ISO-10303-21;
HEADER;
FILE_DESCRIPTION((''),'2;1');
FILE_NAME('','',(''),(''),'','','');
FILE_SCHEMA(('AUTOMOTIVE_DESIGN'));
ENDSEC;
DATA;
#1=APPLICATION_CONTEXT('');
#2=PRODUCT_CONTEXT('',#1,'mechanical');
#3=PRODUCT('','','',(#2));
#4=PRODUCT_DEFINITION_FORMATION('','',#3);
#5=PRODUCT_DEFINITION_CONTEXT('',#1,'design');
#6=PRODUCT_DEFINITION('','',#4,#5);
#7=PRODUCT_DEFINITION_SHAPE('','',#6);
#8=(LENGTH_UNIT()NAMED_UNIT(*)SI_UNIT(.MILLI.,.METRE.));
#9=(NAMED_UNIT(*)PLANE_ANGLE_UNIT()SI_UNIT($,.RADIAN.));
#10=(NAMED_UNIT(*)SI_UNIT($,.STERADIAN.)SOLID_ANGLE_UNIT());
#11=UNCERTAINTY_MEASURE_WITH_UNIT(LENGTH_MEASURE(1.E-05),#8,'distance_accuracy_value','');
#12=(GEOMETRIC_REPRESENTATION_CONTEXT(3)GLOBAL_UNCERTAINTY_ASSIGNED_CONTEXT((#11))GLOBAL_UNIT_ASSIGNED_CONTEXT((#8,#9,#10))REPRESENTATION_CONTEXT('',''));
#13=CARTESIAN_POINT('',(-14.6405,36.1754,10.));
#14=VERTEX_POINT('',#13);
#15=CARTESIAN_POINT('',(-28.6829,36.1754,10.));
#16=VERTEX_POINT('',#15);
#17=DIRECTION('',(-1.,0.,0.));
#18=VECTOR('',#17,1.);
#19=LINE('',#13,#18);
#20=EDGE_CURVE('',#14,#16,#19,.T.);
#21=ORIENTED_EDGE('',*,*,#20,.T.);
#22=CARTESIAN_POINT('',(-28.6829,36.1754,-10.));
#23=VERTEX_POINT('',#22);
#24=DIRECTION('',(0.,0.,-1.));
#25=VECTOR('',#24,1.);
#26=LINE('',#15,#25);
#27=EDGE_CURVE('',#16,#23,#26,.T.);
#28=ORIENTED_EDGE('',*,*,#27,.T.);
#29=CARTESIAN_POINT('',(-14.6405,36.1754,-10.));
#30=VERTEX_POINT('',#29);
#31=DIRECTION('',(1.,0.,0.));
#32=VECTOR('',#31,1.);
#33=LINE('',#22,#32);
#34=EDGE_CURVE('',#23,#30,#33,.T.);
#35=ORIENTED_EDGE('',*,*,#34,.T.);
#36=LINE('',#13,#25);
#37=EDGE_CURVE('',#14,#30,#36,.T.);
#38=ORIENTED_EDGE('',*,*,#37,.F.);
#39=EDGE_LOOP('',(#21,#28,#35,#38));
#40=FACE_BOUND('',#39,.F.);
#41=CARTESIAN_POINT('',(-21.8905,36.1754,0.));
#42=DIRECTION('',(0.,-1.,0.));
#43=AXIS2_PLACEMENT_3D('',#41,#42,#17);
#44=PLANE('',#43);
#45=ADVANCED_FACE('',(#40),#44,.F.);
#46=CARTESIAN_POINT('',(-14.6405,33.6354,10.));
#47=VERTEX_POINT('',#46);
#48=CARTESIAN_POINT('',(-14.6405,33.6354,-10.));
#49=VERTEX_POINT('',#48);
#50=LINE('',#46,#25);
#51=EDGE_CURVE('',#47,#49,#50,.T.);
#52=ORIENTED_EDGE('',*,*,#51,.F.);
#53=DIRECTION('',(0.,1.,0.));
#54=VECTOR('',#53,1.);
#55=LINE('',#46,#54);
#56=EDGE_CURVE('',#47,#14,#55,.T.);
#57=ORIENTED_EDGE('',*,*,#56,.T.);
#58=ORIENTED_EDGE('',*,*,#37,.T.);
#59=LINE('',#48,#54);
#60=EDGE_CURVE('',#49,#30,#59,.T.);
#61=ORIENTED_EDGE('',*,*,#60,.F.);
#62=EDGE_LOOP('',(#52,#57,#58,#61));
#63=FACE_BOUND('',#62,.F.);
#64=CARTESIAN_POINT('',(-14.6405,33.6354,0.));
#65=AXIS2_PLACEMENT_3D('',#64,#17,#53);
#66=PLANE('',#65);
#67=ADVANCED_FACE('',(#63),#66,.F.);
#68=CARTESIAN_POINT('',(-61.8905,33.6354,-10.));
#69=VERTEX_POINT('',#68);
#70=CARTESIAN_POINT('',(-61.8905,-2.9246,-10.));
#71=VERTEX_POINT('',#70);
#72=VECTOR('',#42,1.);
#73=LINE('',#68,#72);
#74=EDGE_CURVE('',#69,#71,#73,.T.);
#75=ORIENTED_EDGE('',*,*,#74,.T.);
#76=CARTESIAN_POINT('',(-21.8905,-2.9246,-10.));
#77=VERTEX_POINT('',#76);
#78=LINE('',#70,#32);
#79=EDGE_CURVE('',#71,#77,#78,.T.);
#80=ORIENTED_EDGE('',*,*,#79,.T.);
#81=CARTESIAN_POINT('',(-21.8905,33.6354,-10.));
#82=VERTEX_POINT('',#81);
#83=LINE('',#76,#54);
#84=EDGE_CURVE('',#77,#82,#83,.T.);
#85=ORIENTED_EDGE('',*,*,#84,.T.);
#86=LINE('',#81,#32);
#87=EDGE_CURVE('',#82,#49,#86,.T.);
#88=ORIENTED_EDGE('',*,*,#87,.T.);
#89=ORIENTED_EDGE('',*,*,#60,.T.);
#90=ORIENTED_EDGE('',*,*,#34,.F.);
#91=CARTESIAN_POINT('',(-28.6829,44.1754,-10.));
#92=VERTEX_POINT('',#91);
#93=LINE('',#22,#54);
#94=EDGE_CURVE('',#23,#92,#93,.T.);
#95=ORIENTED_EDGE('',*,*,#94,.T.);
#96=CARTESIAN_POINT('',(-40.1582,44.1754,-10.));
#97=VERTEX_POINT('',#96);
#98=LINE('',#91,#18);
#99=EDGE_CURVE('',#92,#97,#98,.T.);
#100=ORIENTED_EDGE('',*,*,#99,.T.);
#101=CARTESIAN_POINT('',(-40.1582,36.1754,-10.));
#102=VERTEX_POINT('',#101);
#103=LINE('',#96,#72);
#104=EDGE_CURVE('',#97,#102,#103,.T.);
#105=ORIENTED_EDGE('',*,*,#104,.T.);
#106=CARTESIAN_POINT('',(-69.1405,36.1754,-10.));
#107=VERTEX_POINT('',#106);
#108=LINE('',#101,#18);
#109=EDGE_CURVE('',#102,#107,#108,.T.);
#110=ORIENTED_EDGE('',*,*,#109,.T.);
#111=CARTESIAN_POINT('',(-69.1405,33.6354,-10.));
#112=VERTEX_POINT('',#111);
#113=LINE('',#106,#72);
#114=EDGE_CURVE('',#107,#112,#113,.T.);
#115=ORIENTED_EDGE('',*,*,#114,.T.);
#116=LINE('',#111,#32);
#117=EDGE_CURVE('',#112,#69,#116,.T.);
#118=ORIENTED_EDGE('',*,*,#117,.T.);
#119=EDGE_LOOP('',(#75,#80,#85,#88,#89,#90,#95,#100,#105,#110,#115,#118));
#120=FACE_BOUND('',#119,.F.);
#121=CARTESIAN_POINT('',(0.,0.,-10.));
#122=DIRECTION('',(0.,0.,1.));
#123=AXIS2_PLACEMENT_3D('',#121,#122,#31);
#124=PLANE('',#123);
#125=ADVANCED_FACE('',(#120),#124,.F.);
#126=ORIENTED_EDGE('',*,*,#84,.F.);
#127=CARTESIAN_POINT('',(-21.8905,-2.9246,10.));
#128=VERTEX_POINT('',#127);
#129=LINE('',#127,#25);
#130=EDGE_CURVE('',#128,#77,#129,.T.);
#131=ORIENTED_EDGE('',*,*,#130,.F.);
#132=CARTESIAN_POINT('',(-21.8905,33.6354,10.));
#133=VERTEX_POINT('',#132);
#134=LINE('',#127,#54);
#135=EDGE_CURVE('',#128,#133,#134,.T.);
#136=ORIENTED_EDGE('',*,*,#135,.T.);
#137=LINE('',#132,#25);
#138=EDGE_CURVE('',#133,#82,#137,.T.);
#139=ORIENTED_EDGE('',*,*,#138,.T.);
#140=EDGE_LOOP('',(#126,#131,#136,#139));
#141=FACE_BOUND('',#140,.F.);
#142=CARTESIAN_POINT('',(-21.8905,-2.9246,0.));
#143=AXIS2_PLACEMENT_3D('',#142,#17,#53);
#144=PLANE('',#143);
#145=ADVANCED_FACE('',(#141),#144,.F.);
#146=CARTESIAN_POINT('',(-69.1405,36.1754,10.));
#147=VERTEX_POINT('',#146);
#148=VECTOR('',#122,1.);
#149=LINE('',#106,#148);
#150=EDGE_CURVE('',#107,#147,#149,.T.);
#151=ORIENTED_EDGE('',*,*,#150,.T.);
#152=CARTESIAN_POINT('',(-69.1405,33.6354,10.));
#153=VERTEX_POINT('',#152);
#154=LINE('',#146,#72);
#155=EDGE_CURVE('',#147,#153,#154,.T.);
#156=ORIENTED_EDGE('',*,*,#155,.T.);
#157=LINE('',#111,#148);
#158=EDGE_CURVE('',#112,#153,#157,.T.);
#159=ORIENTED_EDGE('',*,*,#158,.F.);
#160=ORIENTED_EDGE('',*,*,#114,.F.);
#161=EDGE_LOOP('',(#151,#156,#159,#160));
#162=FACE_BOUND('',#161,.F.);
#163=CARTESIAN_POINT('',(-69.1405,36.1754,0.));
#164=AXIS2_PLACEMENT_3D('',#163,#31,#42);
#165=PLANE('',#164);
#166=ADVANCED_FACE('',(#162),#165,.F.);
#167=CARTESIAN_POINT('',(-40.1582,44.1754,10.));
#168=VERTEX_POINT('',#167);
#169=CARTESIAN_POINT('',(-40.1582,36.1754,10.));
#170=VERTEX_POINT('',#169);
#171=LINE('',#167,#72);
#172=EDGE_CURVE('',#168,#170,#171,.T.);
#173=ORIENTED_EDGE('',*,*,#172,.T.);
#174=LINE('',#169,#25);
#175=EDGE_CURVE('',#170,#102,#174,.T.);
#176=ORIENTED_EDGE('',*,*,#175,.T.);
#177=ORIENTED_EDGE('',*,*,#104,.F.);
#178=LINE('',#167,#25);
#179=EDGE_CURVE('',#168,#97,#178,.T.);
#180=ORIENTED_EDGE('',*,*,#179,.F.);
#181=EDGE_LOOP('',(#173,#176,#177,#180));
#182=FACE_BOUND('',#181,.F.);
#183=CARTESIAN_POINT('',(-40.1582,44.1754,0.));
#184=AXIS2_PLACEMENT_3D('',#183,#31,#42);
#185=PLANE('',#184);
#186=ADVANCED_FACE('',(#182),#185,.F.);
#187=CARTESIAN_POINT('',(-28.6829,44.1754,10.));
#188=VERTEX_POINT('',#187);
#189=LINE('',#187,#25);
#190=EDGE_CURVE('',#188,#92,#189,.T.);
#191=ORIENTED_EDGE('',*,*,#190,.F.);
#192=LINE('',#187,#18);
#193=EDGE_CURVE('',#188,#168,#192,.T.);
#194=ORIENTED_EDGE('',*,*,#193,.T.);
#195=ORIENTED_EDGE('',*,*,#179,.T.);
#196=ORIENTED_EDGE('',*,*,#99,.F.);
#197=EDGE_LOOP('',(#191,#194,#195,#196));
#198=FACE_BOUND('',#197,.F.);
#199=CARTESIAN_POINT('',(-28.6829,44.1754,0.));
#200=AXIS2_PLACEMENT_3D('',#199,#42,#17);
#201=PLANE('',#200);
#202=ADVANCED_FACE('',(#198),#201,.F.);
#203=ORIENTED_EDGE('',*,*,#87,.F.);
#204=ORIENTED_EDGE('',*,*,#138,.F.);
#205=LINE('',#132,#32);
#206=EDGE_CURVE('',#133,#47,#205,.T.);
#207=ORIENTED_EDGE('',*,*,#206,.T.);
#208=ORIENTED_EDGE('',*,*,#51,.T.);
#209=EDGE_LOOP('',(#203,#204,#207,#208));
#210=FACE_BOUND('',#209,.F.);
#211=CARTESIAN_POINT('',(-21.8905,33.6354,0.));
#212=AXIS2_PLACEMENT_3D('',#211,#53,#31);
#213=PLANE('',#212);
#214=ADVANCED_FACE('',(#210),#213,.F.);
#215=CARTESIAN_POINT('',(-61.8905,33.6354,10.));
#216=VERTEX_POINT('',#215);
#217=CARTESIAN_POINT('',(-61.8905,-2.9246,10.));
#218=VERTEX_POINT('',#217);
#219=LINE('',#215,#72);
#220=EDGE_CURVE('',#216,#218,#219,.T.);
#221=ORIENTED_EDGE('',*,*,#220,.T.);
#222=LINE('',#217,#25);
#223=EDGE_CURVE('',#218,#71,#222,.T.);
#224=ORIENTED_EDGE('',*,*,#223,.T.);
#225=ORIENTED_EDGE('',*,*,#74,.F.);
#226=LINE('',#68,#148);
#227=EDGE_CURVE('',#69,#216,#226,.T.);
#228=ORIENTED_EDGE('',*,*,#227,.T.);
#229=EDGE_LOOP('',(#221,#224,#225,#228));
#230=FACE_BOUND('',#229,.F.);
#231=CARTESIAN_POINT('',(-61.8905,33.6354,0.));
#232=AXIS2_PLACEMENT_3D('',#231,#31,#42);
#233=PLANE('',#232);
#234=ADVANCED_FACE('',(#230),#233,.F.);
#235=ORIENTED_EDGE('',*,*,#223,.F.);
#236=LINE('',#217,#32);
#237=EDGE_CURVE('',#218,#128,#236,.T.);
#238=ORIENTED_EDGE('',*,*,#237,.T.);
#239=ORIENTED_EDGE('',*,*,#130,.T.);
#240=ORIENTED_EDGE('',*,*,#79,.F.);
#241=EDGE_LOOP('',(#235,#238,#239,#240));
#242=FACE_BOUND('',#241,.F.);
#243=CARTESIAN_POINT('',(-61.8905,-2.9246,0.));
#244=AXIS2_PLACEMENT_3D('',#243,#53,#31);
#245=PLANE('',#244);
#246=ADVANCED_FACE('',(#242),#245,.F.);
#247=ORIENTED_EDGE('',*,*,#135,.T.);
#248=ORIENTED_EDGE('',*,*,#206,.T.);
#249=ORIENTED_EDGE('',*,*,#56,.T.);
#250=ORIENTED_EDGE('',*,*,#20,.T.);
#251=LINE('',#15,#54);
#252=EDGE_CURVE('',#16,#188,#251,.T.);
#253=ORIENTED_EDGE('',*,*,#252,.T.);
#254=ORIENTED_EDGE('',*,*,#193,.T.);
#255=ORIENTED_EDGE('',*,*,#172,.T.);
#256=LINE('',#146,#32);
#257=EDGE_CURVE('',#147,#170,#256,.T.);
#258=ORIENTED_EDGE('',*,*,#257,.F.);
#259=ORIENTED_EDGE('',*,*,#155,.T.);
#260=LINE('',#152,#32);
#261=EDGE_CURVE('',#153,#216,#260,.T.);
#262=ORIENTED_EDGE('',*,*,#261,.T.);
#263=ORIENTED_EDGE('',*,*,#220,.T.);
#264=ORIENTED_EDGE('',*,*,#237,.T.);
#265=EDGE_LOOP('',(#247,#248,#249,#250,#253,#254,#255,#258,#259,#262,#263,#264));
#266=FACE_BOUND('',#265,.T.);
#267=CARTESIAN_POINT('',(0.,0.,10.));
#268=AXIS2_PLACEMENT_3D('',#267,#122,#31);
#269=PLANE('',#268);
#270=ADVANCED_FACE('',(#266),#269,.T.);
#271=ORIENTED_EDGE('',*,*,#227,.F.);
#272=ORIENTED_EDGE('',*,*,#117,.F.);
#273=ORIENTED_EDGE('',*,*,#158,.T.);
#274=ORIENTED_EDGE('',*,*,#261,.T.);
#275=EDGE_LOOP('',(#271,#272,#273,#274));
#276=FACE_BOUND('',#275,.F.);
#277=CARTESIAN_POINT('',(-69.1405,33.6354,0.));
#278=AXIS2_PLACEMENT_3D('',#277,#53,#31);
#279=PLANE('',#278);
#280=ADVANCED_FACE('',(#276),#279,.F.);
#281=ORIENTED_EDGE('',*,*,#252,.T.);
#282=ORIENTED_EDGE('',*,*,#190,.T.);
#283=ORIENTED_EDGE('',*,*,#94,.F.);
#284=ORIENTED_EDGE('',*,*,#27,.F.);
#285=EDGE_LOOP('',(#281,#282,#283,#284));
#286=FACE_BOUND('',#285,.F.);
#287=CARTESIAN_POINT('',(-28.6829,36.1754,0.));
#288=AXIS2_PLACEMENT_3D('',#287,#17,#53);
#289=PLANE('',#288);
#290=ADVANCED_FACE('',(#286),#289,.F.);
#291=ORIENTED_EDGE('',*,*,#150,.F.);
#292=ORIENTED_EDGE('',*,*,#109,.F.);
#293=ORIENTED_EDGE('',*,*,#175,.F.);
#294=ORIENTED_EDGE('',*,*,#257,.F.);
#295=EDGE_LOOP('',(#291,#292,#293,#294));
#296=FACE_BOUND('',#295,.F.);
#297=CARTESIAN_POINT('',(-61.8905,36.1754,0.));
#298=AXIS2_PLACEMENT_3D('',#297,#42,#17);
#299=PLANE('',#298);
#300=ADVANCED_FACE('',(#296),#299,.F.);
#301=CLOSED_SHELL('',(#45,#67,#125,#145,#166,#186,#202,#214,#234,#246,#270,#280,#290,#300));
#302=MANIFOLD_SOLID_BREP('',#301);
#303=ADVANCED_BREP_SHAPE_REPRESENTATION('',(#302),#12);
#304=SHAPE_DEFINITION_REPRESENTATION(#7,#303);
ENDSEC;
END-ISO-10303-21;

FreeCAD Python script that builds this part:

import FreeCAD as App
import Part
import Sketcher

V = App.Vector


def add_polygon(sketch, points):
    """Adds a closed chain of lines whose ends are joined by coincident constraints."""
    first, n = sketch.GeometryCount, len(points)
    for a, b in zip(points, points[1:] + points[:1]):
        sketch.addGeometry(Part.LineSegment(App.Vector(*a, 0), App.Vector(*b, 0)), False)
    for i in range(n):
        sketch.addConstraint(Sketcher.Constraint("Coincident", first + i, 2, first + (i + 1) % n, 1))

doc = App.newDocument("Part")
params = doc.addObject("Spreadsheet::Sheet", "Params")
for row, (alias, value) in enumerate([
    ("sketch1_width", "40 mm"),
    ("sketch1_height", "2.54 mm"),
    ("sketch1_height2", "8 mm"),
    ("pad1_length", "20 mm"),
], start=1):
    params.set(f"A{row}", alias)
    params.set(f"B{row}", "=" + value)
    params.setAlias(f"B{row}", alias)

body = doc.addObject("PartDesign::Body", "Body")

# Sketch on XY plane
sketch1 = body.newObject("Sketcher::SketchObject", "Sketch")
sketch1.AttachmentSupport = (doc.getObject("XY_Plane"), [""])
sketch1.MapMode = "FlatFace"
add_polygon(sketch1, [(-40.1582, 36.1754), (-69.1405, 36.1754), (-69.1405, 33.6354), (-61.8905, 33.6354), (-61.8905, -2.9246), (-21.8905, -2.9246), (-21.8905, 33.6354), (-14.6405, 33.6354), (-14.6405, 36.1754), (-28.6829, 36.1754), (-28.6829, 44.1754), (-40.1582, 44.1754)])  # lines 0-11
sketch1.addConstraint(Sketcher.Constraint("Horizontal", 0))
sketch1.addConstraint(Sketcher.Constraint("Vertical", 1))
sketch1.addConstraint(Sketcher.Constraint("Horizontal", 2))
sketch1.addConstraint(Sketcher.Constraint("Vertical", 3))
sketch1.addConstraint(Sketcher.Constraint("Horizontal", 4))
sketch1.addConstraint(Sketcher.Constraint("Vertical", 5))
sketch1.addConstraint(Sketcher.Constraint("Horizontal", 6))
sketch1.addConstraint(Sketcher.Constraint("Vertical", 7))
sketch1.addConstraint(Sketcher.Constraint("Horizontal", 8))
sketch1.addConstraint(Sketcher.Constraint("Vertical", 9))
sketch1.addConstraint(Sketcher.Constraint("Horizontal", 10))
sketch1.addConstraint(Sketcher.Constraint("Vertical", 11))
sketch1.addConstraint(Sketcher.Constraint("Horizontal", 2, 2, 5, 2))
sketch1.addConstraint(Sketcher.Constraint("Horizontal", 0, 2, 7, 2))
sketch1.addConstraint(Sketcher.Constraint("Equal", 2, 6))
sketch1.addConstraint(Sketcher.Constraint("DistanceX", 4, 1, 4, 2, 40.0))
sketch1.addConstraint(Sketcher.Constraint("DistanceY", 1, 2, 1, 1, 2.54))
sketch1.addConstraint(Sketcher.Constraint("DistanceY", 3, 2, 0, 2, 39.1))
sketch1.addConstraint(Sketcher.Constraint("DistanceX", 1, 2, 6, 2, 54.5))
sketch1.addConstraint(Sketcher.Constraint("DistanceY", 9, 1, 9, 2, 8.0))
sketch1.addConstraint(Sketcher.Constraint("DistanceX", 0, 2, 0, 1, 28.9823))
sketch1.addConstraint(Sketcher.Constraint("DistanceX", 8, 2, 8, 1, 14.0424))
sketch1.addConstraint(Sketcher.Constraint("DistanceX", 8, 2, -1, 1, 28.683))
sketch1.addConstraint(Sketcher.Constraint("DistanceY", -1, 1, 0, 2, 36.1754))
sketch1.setExpression("Constraints[27]", "Params.sketch1_width")
sketch1.setExpression("Constraints[28]", "Params.sketch1_height")
sketch1.setExpression("Constraints[31]", "Params.sketch1_height2")
pad1 = body.newObject("PartDesign::Pad", "Pad")
pad1.Profile = sketch1
pad1.setExpression("Length", "Params.pad1_length")
pad1.Midplane = True

doc.recompute()
